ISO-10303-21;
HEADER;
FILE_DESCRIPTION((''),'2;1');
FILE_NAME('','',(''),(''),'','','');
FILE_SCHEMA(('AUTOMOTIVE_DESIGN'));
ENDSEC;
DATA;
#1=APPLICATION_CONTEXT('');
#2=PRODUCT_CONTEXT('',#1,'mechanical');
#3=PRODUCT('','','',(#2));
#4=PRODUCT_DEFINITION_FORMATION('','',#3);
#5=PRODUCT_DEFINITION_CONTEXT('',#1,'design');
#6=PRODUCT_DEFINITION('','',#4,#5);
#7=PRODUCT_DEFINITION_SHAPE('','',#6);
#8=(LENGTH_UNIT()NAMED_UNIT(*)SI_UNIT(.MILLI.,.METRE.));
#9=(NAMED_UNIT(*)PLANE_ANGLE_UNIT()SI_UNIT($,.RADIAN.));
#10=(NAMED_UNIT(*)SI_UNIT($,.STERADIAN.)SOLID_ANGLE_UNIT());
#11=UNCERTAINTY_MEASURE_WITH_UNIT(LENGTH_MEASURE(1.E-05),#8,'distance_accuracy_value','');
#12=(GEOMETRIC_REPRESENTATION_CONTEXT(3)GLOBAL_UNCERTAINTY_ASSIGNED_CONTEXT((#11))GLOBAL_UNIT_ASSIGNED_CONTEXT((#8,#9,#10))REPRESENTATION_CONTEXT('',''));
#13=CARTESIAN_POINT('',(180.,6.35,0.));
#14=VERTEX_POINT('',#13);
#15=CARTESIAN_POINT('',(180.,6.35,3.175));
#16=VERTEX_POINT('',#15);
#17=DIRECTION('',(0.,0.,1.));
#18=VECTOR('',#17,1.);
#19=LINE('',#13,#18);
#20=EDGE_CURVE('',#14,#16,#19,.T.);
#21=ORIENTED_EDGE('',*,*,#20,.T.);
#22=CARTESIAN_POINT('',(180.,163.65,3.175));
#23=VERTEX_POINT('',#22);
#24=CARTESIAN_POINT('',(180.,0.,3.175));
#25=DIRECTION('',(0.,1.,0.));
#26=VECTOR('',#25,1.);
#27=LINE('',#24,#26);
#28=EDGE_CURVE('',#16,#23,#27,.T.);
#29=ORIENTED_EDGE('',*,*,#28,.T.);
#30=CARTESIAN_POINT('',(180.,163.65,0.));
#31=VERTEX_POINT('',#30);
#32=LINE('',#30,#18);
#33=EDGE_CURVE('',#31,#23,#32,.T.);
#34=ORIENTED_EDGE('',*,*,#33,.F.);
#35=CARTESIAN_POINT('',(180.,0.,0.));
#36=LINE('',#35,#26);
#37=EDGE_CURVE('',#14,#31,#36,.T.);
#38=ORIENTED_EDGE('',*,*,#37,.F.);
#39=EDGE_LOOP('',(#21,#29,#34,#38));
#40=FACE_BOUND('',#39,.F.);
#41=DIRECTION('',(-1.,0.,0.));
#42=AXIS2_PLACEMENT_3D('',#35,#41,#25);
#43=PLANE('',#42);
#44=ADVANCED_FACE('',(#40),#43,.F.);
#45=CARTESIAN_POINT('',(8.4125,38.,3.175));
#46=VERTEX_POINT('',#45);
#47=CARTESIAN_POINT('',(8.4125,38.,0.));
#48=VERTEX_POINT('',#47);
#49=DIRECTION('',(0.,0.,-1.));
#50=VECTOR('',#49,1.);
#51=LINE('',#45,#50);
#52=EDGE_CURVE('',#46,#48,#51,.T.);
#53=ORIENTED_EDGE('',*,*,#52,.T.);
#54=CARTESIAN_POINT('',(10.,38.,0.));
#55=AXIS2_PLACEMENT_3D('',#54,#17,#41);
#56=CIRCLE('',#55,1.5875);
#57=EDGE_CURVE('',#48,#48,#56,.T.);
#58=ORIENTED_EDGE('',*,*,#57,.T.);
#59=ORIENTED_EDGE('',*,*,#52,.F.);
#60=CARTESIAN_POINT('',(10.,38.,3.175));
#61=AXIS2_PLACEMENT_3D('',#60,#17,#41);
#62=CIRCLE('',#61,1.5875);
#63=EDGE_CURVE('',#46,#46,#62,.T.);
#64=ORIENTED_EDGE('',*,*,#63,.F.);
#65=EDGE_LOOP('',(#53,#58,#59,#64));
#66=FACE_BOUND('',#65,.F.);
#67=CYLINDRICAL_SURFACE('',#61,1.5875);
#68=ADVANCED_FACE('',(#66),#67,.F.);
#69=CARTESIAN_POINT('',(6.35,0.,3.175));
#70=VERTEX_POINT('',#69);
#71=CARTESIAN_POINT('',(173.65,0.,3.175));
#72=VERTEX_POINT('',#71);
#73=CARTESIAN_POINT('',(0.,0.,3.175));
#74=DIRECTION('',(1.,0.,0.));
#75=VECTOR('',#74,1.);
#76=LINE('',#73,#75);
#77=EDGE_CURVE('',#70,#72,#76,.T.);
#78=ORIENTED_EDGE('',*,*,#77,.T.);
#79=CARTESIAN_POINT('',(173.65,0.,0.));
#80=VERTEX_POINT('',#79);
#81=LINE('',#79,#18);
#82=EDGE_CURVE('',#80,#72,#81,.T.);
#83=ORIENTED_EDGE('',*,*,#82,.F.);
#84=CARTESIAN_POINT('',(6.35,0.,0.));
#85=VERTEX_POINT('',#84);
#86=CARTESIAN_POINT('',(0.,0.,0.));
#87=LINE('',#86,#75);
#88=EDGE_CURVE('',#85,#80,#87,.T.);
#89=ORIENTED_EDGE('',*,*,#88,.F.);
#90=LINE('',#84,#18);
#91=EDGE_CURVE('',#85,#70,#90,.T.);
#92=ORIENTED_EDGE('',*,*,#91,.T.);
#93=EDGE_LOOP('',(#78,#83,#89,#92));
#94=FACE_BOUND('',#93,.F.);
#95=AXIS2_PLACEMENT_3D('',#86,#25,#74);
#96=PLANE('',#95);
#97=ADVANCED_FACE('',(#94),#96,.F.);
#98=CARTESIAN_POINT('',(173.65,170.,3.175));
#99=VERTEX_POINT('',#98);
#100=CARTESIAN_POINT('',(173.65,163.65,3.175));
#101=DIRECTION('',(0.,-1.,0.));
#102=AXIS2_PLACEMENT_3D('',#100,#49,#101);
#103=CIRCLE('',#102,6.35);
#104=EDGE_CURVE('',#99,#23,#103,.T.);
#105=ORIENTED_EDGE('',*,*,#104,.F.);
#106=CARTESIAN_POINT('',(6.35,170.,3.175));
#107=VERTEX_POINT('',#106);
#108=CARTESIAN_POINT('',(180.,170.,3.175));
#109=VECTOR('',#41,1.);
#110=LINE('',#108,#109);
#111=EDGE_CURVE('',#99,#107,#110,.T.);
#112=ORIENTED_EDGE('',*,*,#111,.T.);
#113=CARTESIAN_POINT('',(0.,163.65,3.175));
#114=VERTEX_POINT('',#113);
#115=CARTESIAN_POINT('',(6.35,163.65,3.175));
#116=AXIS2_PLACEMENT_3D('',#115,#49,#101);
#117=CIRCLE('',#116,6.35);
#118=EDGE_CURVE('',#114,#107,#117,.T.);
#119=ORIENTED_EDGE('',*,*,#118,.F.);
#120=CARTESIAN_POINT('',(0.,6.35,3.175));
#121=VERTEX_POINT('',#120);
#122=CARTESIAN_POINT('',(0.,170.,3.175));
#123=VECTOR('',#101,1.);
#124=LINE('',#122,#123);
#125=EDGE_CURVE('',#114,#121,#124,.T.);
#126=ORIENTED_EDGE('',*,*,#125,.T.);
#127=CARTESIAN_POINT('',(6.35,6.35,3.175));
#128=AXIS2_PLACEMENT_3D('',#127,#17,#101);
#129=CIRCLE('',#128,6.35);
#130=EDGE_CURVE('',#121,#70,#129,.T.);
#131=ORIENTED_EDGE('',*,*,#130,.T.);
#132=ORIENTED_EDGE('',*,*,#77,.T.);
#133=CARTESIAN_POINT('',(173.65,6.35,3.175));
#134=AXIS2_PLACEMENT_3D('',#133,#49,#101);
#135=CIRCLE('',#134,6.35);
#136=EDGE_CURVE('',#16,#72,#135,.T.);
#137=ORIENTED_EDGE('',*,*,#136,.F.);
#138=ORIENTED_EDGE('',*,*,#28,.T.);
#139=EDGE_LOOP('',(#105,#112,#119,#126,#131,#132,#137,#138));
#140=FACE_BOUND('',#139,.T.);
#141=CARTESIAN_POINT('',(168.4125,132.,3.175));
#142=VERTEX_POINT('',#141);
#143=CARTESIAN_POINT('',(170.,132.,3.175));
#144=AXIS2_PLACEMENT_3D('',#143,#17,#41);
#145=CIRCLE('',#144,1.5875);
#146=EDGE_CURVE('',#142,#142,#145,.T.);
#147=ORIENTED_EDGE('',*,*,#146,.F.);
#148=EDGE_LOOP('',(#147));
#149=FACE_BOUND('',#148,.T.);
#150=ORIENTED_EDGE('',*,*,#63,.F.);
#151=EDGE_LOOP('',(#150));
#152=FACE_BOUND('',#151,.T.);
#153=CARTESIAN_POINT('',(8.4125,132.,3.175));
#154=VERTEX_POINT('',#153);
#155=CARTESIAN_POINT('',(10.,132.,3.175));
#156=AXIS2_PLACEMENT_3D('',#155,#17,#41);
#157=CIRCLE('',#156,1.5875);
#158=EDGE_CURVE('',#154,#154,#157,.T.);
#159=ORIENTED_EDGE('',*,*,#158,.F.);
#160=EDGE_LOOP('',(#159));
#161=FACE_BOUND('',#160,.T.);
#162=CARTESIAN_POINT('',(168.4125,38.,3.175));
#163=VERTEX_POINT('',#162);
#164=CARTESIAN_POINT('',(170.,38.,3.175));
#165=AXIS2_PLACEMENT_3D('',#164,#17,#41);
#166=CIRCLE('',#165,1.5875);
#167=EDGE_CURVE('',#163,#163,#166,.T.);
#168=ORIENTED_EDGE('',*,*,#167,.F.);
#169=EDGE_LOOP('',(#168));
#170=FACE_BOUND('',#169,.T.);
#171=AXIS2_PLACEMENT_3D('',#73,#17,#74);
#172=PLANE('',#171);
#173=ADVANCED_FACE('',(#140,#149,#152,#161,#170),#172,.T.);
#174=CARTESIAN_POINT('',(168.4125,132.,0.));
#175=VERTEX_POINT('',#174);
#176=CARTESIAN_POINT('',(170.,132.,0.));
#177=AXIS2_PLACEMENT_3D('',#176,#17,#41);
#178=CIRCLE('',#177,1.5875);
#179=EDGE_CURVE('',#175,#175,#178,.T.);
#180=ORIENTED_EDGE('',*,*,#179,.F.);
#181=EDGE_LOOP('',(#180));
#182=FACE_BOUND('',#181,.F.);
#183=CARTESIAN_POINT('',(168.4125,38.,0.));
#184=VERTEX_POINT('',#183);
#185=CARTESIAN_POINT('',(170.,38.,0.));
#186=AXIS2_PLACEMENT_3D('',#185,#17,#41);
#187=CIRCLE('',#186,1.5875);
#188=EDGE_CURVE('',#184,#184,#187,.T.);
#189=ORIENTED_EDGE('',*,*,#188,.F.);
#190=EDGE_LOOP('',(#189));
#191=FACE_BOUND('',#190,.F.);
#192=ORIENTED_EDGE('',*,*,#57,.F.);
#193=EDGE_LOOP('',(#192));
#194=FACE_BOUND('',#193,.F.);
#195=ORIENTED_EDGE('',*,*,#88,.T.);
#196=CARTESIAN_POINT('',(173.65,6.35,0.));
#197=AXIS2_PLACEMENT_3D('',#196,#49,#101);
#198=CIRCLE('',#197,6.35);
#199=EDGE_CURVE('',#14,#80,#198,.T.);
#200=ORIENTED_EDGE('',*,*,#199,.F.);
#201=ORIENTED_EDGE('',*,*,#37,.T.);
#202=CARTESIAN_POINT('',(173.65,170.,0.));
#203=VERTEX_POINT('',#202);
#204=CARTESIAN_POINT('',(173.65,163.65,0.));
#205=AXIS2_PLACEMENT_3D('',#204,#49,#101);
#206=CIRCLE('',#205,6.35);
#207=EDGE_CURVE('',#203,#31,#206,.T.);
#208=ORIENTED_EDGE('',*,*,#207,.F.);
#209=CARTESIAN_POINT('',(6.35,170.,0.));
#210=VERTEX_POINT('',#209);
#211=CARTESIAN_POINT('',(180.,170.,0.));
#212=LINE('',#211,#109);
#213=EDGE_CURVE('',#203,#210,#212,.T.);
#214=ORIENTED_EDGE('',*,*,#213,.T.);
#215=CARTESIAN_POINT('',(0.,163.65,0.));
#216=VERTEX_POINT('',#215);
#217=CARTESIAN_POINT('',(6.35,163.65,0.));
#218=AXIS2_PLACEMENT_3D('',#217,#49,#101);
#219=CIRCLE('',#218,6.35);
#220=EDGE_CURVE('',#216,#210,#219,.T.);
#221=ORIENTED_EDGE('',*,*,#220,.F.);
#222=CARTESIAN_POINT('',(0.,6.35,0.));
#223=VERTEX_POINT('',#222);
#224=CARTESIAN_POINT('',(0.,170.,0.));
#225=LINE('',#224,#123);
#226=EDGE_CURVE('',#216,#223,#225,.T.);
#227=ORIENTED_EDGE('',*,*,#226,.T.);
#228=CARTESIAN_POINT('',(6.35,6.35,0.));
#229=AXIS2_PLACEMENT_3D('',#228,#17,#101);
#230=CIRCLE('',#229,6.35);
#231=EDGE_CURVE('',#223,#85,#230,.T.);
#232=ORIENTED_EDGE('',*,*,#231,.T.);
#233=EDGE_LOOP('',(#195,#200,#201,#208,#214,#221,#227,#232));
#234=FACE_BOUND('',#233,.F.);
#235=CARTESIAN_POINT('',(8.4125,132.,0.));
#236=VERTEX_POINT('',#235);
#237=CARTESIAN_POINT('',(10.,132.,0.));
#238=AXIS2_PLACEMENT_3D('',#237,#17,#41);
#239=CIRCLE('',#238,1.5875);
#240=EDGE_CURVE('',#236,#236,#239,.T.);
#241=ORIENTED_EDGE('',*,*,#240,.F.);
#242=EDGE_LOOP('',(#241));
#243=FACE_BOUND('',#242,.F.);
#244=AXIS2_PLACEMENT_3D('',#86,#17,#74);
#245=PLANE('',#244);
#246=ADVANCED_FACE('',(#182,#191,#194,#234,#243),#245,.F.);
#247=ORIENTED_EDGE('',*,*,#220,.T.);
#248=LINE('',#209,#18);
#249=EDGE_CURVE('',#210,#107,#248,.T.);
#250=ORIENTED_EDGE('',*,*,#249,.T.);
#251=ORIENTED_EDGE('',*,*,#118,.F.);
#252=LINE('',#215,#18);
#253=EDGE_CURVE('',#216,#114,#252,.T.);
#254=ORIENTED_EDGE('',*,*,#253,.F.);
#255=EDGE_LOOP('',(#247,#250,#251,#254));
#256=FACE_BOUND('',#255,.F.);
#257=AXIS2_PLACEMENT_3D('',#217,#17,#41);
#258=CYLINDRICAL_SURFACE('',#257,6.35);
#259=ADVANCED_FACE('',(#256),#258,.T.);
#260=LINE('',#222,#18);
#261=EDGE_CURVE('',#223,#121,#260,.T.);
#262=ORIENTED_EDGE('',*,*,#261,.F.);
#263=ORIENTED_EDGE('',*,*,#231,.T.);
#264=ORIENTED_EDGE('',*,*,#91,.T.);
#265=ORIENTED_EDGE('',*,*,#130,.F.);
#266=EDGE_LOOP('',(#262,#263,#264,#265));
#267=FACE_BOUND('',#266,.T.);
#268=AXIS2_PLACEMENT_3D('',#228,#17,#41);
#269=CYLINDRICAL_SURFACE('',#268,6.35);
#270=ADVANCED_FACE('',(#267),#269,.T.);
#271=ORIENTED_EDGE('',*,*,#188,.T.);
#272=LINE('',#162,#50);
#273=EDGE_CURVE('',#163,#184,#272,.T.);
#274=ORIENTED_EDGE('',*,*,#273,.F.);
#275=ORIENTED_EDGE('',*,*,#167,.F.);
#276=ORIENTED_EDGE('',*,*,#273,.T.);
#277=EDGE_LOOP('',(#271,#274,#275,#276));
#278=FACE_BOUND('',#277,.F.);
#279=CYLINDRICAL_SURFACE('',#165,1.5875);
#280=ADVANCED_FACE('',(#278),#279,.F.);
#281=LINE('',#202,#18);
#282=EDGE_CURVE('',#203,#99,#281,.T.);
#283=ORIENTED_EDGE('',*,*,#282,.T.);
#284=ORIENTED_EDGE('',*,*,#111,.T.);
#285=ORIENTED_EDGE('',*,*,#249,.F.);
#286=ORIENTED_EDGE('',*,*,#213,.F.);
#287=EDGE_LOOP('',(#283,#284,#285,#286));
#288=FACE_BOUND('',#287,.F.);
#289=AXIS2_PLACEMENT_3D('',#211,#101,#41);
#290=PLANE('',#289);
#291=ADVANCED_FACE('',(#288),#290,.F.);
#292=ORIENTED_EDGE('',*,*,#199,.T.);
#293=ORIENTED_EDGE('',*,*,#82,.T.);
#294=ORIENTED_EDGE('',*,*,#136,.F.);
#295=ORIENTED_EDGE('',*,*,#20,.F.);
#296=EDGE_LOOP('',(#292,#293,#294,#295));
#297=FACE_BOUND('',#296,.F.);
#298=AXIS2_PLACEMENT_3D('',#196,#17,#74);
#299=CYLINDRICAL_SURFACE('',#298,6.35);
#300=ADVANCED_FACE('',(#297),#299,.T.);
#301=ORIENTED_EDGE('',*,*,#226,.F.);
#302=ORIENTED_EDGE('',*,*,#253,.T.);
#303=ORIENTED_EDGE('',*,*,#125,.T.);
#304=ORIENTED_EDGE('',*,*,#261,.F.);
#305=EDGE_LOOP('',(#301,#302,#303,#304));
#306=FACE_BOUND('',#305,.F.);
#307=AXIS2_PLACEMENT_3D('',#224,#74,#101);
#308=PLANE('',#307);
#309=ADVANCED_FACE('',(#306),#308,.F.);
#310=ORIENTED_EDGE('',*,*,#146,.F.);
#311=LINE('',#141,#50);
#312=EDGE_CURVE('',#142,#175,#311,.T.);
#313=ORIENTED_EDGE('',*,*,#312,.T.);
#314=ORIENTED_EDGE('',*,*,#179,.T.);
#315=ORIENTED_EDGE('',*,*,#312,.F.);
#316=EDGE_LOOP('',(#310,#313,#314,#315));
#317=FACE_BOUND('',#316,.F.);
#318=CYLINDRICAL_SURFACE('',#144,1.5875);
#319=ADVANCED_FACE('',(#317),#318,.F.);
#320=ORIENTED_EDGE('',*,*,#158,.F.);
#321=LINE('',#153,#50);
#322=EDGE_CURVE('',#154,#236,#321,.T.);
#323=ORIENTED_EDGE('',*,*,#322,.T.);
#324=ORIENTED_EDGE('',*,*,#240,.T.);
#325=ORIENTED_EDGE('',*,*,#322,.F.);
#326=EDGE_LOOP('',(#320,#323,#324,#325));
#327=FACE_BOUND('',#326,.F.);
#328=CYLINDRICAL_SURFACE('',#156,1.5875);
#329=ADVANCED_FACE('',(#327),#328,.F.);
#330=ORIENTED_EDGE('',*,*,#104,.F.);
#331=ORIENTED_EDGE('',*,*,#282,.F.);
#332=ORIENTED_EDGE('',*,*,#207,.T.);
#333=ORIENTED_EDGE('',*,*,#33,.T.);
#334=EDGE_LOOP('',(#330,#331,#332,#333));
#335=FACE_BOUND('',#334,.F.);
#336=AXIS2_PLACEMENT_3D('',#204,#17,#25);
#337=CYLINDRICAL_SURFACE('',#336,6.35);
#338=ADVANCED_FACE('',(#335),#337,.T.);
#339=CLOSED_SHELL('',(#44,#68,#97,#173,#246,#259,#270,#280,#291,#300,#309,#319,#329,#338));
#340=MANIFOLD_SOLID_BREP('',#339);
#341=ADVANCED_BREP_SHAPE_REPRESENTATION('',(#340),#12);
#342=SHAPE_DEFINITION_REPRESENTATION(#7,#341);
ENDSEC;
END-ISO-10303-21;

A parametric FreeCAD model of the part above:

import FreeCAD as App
import Part
import Sketcher


def edges_at(feature, points):
    """Names of the edges that pass closest to the given points."""
    edges = feature.Shape.Edges
    near = lambda p: min(range(len(edges)), key=lambda i: edges[i].distToShape(Part.Vertex(*p))[0])
    return sorted({f"Edge{near(p) + 1}" for p in points})

doc = App.newDocument("Part")
params = doc.addObject("Spreadsheet::Sheet", "Params")
for row, (alias, value) in enumerate([
    ("sketch1_width", "180 mm"),
    ("sketch1_height", "170 mm"),
    ("pad1_length", "3.175 mm"),
    ("fillet_radius", "6.35 mm"),
    ("fillet2_radius", "6.35 mm"),
    ("pocket1_length", "10 mm"),
], start=1):
    params.set(f"A{row}", alias)
    params.set(f"B{row}", "=" + value)
    params.setAlias(f"B{row}", alias)

body = doc.addObject("PartDesign::Body", "Body")

# Sketch on XY plane
sketch1 = doc.addObject("Sketcher::SketchObject", "Sketch")
body.addObject(sketch1)
sketch1.AttachmentSupport = (doc.XY_Plane, [""])
sketch1.MapMode = "FlatFace"
sketch1.addGeometry(Part.LineSegment(App.Vector(0, 170, 0), App.Vector(0, 0, 0)), False)
sketch1.addGeometry(Part.LineSegment(App.Vector(0, 0, 0), App.Vector(180, 0, 0)), False)
sketch1.addGeometry(Part.LineSegment(App.Vector(180, 0, 0), App.Vector(180, 170, 0)), False)
sketch1.addGeometry(Part.LineSegment(App.Vector(180, 170, 0), App.Vector(0, 170, 0)), False)
sketch1.addConstraint(Sketcher.Constraint("Coincident", 0, 2, 1, 1))
sketch1.addConstraint(Sketcher.Constraint("Coincident", 1, 2, 2, 1))
sketch1.addConstraint(Sketcher.Constraint("Coincident", 2, 2, 3, 1))
sketch1.addConstraint(Sketcher.Constraint("Coincident", 3, 2, 0, 1))
sketch1.addConstraint(Sketcher.Constraint("Vertical", 0))
sketch1.addConstraint(Sketcher.Constraint("Horizontal", 1))
sketch1.addConstraint(Sketcher.Constraint("Vertical", 2))
sketch1.addConstraint(Sketcher.Constraint("Horizontal", 3))
sketch1.addConstraint(Sketcher.Constraint("Coincident", 0, 2, -1, 1))
sketch1.addConstraint(Sketcher.Constraint("DistanceX", 1, 1, 1, 2, 180.0))
sketch1.addConstraint(Sketcher.Constraint("DistanceY", 0, 2, 0, 1, 170.0))
sketch1.setExpression("Constraints[9]", "Params.sketch1_width")
sketch1.setExpression("Constraints[10]", "Params.sketch1_height")
pad1 = doc.addObject("PartDesign::Pad", "Pad")
body.addObject(pad1)
pad1.Profile = sketch1
pad1.setExpression("Length", "Params.pad1_length")
doc.recompute()

fillet = doc.addObject("PartDesign::Fillet", "Fillet")
body.addObject(fillet)
fillet.Base = (pad1, edges_at(pad1, [(0, 0, 1.587), (180, 0, 1.587)]))
fillet.setExpression("Radius", "Params.fillet_radius")
doc.recompute()

fillet2 = doc.addObject("PartDesign::Fillet", "Fillet001")
body.addObject(fillet2)
fillet2.Base = (fillet, edges_at(fillet, [(0, 170, 1.587), (180, 170, 1.587)]))
fillet2.setExpression("Radius", "Params.fillet2_radius")

# Sketch on XY plane
sketch2 = doc.addObject("Sketcher::SketchObject", "Sketch001")
body.addObject(sketch2)
sketch2.AttachmentSupport = (doc.XY_Plane, [""])
sketch2.MapMode = "FlatFace"
sketch2.AttachmentOffset = App.Placement(App.Vector(0, 0, 3.175), App.Rotation())
sketch2.addGeometry(Part.Circle(App.Vector(10, 38, 0), App.Vector(0, 0, 1), 1.6), False)
sketch2.addGeometry(Part.Circle(App.Vector(170, 38, 0), App.Vector(0, 0, 1), 1.6), False)
sketch2.addGeometry(Part.Circle(App.Vector(10, 132, 0), App.Vector(0, 0, 1), 1.6), False)
sketch2.addGeometry(Part.Circle(App.Vector(170, 132, 0), App.Vector(0, 0, 1), 1.6), False)
sketch2.addConstraint(Sketcher.Constraint("Equal", 0, 1))
sketch2.addConstraint(Sketcher.Constraint("Equal", 1, 2))
sketch2.addConstraint(Sketcher.Constraint("Equal", 2, 3))
sketch2.addConstraint(Sketcher.Constraint("Horizontal", 0, 3, 1, 3))
sketch2.addConstraint(Sketcher.Constraint("Horizontal", 2, 3, 3, 3))
sketch2.addConstraint(Sketcher.Constraint("Vertical", 0, 3, 2, 3))
sketch2.addConstraint(Sketcher.Constraint("Vertical", 1, 3, 3, 3))
sketch2.addConstraint(Sketcher.Constraint("Diameter", 0, 3.175))
sketch2.addConstraint(Sketcher.Constraint("DistanceX", -1, 1, 0, 3, 10.0))
sketch2.addConstraint(Sketcher.Constraint("DistanceY", -1, 1, 0, 3, 38.0))
sketch2.addConstraint(Sketcher.Constraint("DistanceY", 0, 3, 2, 3, 94.0))
sketch2.addConstraint(Sketcher.Constraint("DistanceX", -1, 1, 1, 3, 170.0))
pocket1 = doc.addObject("PartDesign::Pocket", "Pocket")
body.addObject(pocket1)
pocket1.Profile = sketch2
pocket1.setExpression("Length", "Params.pocket1_length")

doc.recompute()
